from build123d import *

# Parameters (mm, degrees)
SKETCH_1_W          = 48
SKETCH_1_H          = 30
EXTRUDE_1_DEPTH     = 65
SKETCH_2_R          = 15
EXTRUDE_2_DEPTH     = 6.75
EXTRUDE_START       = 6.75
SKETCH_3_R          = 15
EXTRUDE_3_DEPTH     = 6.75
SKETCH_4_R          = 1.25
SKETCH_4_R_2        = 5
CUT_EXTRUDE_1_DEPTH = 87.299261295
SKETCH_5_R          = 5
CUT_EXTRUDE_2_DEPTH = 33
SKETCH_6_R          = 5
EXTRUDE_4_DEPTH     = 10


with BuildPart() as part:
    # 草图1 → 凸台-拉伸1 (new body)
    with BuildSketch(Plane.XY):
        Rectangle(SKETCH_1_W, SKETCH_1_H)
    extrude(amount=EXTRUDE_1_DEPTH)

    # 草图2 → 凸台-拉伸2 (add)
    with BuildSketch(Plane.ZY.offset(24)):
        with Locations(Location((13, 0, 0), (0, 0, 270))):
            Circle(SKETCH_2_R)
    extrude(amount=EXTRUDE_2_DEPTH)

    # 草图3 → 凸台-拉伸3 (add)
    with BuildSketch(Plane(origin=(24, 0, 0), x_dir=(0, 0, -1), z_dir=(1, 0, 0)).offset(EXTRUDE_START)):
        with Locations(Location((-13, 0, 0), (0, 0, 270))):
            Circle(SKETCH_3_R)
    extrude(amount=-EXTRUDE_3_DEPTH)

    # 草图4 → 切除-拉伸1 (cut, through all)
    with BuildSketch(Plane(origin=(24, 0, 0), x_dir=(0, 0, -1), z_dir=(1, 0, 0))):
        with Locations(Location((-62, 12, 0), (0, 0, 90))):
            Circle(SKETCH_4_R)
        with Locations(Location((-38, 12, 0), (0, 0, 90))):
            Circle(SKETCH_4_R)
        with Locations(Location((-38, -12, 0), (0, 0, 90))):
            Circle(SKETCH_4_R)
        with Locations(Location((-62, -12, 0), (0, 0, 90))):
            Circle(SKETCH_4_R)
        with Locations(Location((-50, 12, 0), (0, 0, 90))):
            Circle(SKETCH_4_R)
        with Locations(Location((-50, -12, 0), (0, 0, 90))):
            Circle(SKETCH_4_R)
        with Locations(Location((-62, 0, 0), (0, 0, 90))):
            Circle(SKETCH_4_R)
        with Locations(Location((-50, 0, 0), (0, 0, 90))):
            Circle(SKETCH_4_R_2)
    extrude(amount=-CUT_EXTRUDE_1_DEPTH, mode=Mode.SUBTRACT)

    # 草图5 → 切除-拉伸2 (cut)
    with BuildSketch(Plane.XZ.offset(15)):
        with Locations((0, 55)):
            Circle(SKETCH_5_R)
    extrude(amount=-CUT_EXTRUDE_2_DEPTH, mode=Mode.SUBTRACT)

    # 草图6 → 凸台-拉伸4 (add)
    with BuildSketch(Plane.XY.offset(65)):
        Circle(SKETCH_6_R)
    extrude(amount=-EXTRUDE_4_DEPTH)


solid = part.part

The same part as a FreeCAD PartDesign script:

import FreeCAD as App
import Part
import Sketcher
from FreeCAD import Vector

doc = App.newDocument("Part")
params = doc.addObject("Spreadsheet::Sheet", "Params")
for row, (alias, value) in enumerate([
    ("sketch1_width", "48 mm"),
    ("sketch1_height", "30 mm"),
    ("pad1_length", "65 mm"),
    ("sketch2_diameter", "30 mm"),
    ("pad2_length", "6.75 mm"),
    ("sketch3_diameter", "30 mm"),
    ("pad3_length", "6.75 mm"),
    ("sketch4_diameter", "10 mm"),
    ("sketch4_diameter2", "2.5 mm"),
    ("sketch5_diameter", "10 mm"),
    ("pocket2_length", "33 mm"),
    ("sketch6_diameter", "10 mm"),
    ("pad4_length", "10 mm"),
], start=1):
    params.set(f"A{row}", alias)
    params.set(f"B{row}", "=" + value)
    params.setAlias(f"B{row}", alias)

body = doc.addObject("PartDesign::Body", "Body")

sketch1 = doc.addObject("Sketcher::SketchObject", "Sketch")
body.addObject(sketch1)
sketch1.AttachmentSupport = (doc.XY_Plane, [""])
sketch1.MapMode = "FlatFace"
sketch1.addGeometry([
    Part.LineSegment(Vector(-24, 15, 0), Vector(-24, -15, 0)),
    Part.LineSegment(Vector(-24, -15, 0), Vector(24, -15, 0)),
    Part.LineSegment(Vector(24, -15, 0), Vector(24, 15, 0)),
    Part.LineSegment(Vector(24, 15, 0), Vector(-24, 15, 0)),
], False)
sketch1.addConstraint([
    Sketcher.Constraint("Coincident", 0, 2, 1, 1),
    Sketcher.Constraint("Coincident", 1, 2, 2, 1),
    Sketcher.Constraint("Coincident", 2, 2, 3, 1),
    Sketcher.Constraint("Coincident", 3, 2, 0, 1),
    Sketcher.Constraint("Vertical", 0),
    Sketcher.Constraint("Horizontal", 1),
    Sketcher.Constraint("Vertical", 2),
    Sketcher.Constraint("Horizontal", 3),
    Sketcher.Constraint("Symmetric", 0, 2, 2, 2, -1, 1),
    Sketcher.Constraint("DistanceX", 1, 1, 1, 2, 48.0),
    Sketcher.Constraint("DistanceY", 0, 2, 0, 1, 30.0),
])
sketch1.setExpression("Constraints[9]", "Params.sketch1_width")
sketch1.setExpression("Constraints[10]", "Params.sketch1_height")
pad1 = doc.addObject("PartDesign::Pad", "Pad")
body.addObject(pad1)
pad1.Profile = sketch1
pad1.setExpression("Length", "Params.pad1_length")

sketch2 = doc.addObject("Sketcher::SketchObject", "Sketch001")
body.addObject(sketch2)
sketch2.AttachmentSupport = (doc.YZ_Plane, [""])
sketch2.MapMode = "FlatFace"
sketch2.AttachmentOffset = App.Placement(Vector(0, 0, -24), App.Rotation())
sketch2.addGeometry(Part.Circle(Vector(0, 13, 0), Vector(0, 0, 1), 15), False)
sketch2.addConstraint([
    Sketcher.Constraint("PointOnObject", 0, 3, -2),
    Sketcher.Constraint("Diameter", 0, 30.0),
    Sketcher.Constraint("DistanceY", -1, 1, 0, 3, 13.0),
])
sketch2.setExpression("Constraints[1]", "Params.sketch2_diameter")
pad2 = doc.addObject("PartDesign::Pad", "Pad001")
body.addObject(pad2)
pad2.Profile = sketch2
pad2.setExpression("Length", "Params.pad2_length")
pad2.Reversed = True

sketch3 = doc.addObject("Sketcher::SketchObject", "Sketch002")
body.addObject(sketch3)
sketch3.AttachmentSupport = (doc.YZ_Plane, [""])
sketch3.MapMode = "FlatFace"
sketch3.AttachmentOffset = App.Placement(Vector(0, 0, 30.75), App.Rotation())
sketch3.addGeometry(Part.Circle(Vector(0, 13, 0), Vector(0, 0, 1), 15), False)
sketch3.addConstraint([
    Sketcher.Constraint("PointOnObject", 0, 3, -2),
    Sketcher.Constraint("Diameter", 0, 30.0),
    Sketcher.Constraint("DistanceY", -1, 1, 0, 3, 13.0),
])
sketch3.setExpression("Constraints[1]", "Params.sketch3_diameter")
pad3 = doc.addObject("PartDesign::Pad", "Pad002")
body.addObject(pad3)
pad3.Profile = sketch3
pad3.setExpression("Length", "Params.pad3_length")
pad3.Reversed = True

sketch4 = doc.addObject("Sketcher::SketchObject", "Sketch003")
body.addObject(sketch4)
sketch4.AttachmentSupport = (doc.YZ_Plane, [""])
sketch4.MapMode = "FlatFace"
sketch4.AttachmentOffset = App.Placement(Vector(0, 0, 24), App.Rotation())
sketch4.addGeometry([
    Part.Circle(Vector(12, 62, 0), Vector(0, 0, 1), 1.2),
    Part.Circle(Vector(12, 38, 0), Vector(0, 0, 1), 1.2),
    Part.Circle(Vector(-12, 38, 0), Vector(0, 0, 1), 1.2),
    Part.Circle(Vector(-12, 62, 0), Vector(0, 0, 1), 1.2),
    Part.Circle(Vector(12, 50, 0), Vector(0, 0, 1), 1.2),
    Part.Circle(Vector(-12, 50, 0), Vector(0, 0, 1), 1.2),
    Part.Circle(Vector(0, 62, 0), Vector(0, 0, 1), 1.2),
    Part.Circle(Vector(0, 50, 0), Vector(0, 0, 1), 5),
], False)
sketch4.addConstraint([
    Sketcher.Constraint("Equal", 0, 1),
    Sketcher.Constraint("Equal", 1, 2),
    Sketcher.Constraint("Equal", 2, 3),
    Sketcher.Constraint("Equal", 3, 4),
    Sketcher.Constraint("Equal", 4, 5),
    Sketcher.Constraint("Equal", 5, 6),
    Sketcher.Constraint("Symmetric", 1, 3, 2, 3, -2),
    Sketcher.Constraint("Symmetric", 0, 3, 3, 3, -2),
    Sketcher.Constraint("Symmetric", 4, 3, 5, 3, -2),
    Sketcher.Constraint("PointOnObject", 6, 3, -2),
    Sketcher.Constraint("PointOnObject", 7, 3, -2),
    Sketcher.Constraint("Horizontal", 3, 3, 6, 3),
    Sketcher.Constraint("Horizontal", 5, 3, 7, 3),
    Sketcher.Constraint("Vertical", 0, 3, 1, 3),
    Sketcher.Constraint("Vertical", 1, 3, 4, 3),
    Sketcher.Constraint("Diameter", 7, 10.0),
    Sketcher.Constraint("Diameter", 0, 2.5),
    Sketcher.Constraint("DistanceX", -1, 1, 0, 3, 12.0),
    Sketcher.Constraint("DistanceY", -1, 1, 0, 3, 62.0),
    Sketcher.Constraint("DistanceY", -1, 1, 1, 3, 38.0),
    Sketcher.Constraint("DistanceY", -1, 1, 4, 3, 50.0),
])
sketch4.setExpression("Constraints[15]", "Params.sketch4_diameter")
sketch4.setExpression("Constraints[16]", "Params.sketch4_diameter2")
pocket1 = doc.addObject("PartDesign::Pocket", "Pocket")
body.addObject(pocket1)
pocket1.Profile = sketch4
pocket1.Type = "ThroughAll"

sketch5 = doc.addObject("Sketcher::SketchObject", "Sketch004")
body.addObject(sketch5)
sketch5.AttachmentSupport = (doc.XZ_Plane, [""])
sketch5.MapMode = "FlatFace"
sketch5.AttachmentOffset = App.Placement(Vector(0, 0, 15), App.Rotation())
sketch5.addGeometry(Part.Circle(Vector(0, 55, 0), Vector(0, 0, 1), 5), False)
sketch5.addConstraint([
    Sketcher.Constraint("PointOnObject", 0, 3, -2),
    Sketcher.Constraint("Diameter", 0, 10.0),
    Sketcher.Constraint("DistanceY", -1, 1, 0, 3, 55.0),
])
sketch5.setExpression("Constraints[1]", "Params.sketch5_diameter")
pocket2 = doc.addObject("PartDesign::Pocket", "Pocket001")
body.addObject(pocket2)
pocket2.Profile = sketch5
pocket2.setExpression("Length", "Params.pocket2_length")

sketch6 = doc.addObject("Sketcher::SketchObject", "Sketch005")
body.addObject(sketch6)
sketch6.AttachmentSupport = (doc.XY_Plane, [""])
sketch6.MapMode = "FlatFace"
sketch6.AttachmentOffset = App.Placement(Vector(0, 0, 65), App.Rotation())
sketch6.addGeometry(Part.Circle(Vector(0, 0, 0), Vector(0, 0, 1), 5), False)
sketch6.addConstraint([
    Sketcher.Constraint("Coincident", 0, 3, -1, 1),
    Sketcher.Constraint("Diameter", 0, 10.0),
])
sketch6.setExpression("Constraints[1]", "Params.sketch6_diameter")
pad4 = doc.addObject("PartDesign::Pad", "Pad003")
body.addObject(pad4)
pad4.Profile = sketch6
pad4.setExpression("Length", "Params.pad4_length")
pad4.Reversed = True

doc.recompute()
